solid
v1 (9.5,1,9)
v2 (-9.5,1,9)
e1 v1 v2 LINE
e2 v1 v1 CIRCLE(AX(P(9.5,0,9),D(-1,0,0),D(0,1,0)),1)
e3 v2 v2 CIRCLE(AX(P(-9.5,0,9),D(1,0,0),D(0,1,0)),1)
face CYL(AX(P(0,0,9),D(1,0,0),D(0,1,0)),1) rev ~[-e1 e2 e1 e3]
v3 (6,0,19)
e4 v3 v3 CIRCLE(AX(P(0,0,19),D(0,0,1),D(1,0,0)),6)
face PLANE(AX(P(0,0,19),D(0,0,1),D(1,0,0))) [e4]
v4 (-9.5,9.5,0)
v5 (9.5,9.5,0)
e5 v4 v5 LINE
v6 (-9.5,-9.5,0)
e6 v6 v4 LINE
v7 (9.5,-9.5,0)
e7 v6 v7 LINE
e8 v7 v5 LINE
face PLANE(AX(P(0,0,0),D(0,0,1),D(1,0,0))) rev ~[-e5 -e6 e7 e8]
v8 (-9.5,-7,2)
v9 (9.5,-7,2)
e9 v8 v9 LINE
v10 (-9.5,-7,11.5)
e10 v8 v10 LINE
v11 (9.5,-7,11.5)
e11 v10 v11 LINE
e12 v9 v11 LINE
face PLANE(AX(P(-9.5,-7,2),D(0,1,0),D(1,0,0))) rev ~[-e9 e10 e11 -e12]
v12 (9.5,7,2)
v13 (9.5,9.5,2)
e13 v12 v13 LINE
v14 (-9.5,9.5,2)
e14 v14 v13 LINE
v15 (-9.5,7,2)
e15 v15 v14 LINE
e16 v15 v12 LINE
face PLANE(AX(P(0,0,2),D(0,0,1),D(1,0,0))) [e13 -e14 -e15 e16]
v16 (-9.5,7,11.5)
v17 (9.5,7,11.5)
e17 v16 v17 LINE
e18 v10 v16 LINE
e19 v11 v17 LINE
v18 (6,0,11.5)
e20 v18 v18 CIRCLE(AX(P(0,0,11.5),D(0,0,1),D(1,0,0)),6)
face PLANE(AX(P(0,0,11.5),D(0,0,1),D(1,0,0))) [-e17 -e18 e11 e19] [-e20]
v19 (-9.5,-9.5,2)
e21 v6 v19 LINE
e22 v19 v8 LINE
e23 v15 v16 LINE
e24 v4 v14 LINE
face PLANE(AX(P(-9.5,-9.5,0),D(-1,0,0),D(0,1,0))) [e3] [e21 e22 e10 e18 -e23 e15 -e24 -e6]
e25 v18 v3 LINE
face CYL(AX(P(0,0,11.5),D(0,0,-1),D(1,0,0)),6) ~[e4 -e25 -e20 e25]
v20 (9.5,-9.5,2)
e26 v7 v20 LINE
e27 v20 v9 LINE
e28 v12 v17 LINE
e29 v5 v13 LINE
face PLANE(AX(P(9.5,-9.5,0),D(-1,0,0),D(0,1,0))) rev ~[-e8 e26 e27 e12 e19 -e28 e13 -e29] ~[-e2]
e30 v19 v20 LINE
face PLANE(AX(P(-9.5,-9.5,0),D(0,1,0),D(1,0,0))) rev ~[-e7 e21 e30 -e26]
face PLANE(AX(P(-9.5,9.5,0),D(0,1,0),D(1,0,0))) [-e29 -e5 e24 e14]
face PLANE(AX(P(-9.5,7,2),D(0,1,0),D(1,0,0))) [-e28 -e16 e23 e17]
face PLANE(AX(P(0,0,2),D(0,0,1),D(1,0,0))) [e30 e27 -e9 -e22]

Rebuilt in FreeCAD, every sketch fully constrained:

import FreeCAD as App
import Part
import Sketcher

V = App.Vector

doc = App.newDocument("Part")
body = doc.addObject("PartDesign::Body", "Body")

# Sketch on XY plane
sketch1 = body.newObject("Sketcher::SketchObject", "Sketch")
sketch1.AttachmentSupport = (doc.getObject("XY_Plane"), [""])
sketch1.MapMode = "FlatFace"
sketch1.addGeometry([
    Part.LineSegment(V(-9.5, 9.5, 0), V(-9.5, -9.5, 0)),
    Part.LineSegment(V(-9.5, -9.5, 0), V(9.5, -9.5, 0)),
    Part.LineSegment(V(9.5, -9.5, 0), V(9.5, 9.5, 0)),
    Part.LineSegment(V(9.5, 9.5, 0), V(-9.5, 9.5, 0)),
], False)
sketch1.addConstraint([
    Sketcher.Constraint("Coincident", 0, 2, 1, 1),
    Sketcher.Constraint("Coincident", 1, 2, 2, 1),
    Sketcher.Constraint("Coincident", 2, 2, 3, 1),
    Sketcher.Constraint("Coincident", 3, 2, 0, 1),
    Sketcher.Constraint("Vertical", 0),
    Sketcher.Constraint("Horizontal", 1),
    Sketcher.Constraint("Vertical", 2),
    Sketcher.Constraint("Horizontal", 3),
    Sketcher.Constraint("Symmetric", 0, 2, 2, 2, -1, 1),
    Sketcher.Constraint("Equal", 3, 0),
    Sketcher.Constraint("DistanceX", 1, 1, 1, 2, 19.0),
])
pad1 = body.newObject("PartDesign::Pad", "Pad")
pad1.Profile = sketch1
pad1.Length = 2

# Sketch on XY plane
sketch2 = body.newObject("Sketcher::SketchObject", "Sketch001")
sketch2.AttachmentSupport = (doc.getObject("XY_Plane"), [""])
sketch2.MapMode = "FlatFace"
sketch2.AttachmentOffset = App.Placement(V(0, 0, 2), App.Rotation())
sketch2.addGeometry([
    Part.LineSegment(V(-9.5, 7, 0), V(-9.5, -7, 0)),
    Part.LineSegment(V(-9.5, -7, 0), V(9.5, -7, 0)),
    Part.LineSegment(V(9.5, -7, 0), V(9.5, 7, 0)),
    Part.LineSegment(V(9.5, 7, 0), V(-9.5, 7, 0)),
], False)
sketch2.addConstraint([
    Sketcher.Constraint("Coincident", 0, 2, 1, 1),
    Sketcher.Constraint("Coincident", 1, 2, 2, 1),
    Sketcher.Constraint("Coincident", 2, 2, 3, 1),
    Sketcher.Constraint("Coincident", 3, 2, 0, 1),
    Sketcher.Constraint("Vertical", 0),
    Sketcher.Constraint("Horizontal", 1),
    Sketcher.Constraint("Vertical", 2),
    Sketcher.Constraint("Horizontal", 3),
    Sketcher.Constraint("Symmetric", 0, 2, 2, 2, -1, 1),
    Sketcher.Constraint("DistanceX", 1, 1, 1, 2, 19.0),
    Sketcher.Constraint("DistanceY", 0, 2, 0, 1, 14.0),
])
pad2 = body.newObject("PartDesign::Pad", "Pad001")
pad2.Profile = sketch2
pad2.Length = 9.5

# Sketch on XY plane
sketch3 = body.newObject("Sketcher::SketchObject", "Sketch002")
sketch3.AttachmentSupport = (doc.getObject("XY_Plane"), [""])
sketch3.MapMode = "FlatFace"
sketch3.AttachmentOffset = App.Placement(V(0, 0, 11.5), App.Rotation())
sketch3.addGeometry(Part.Circle(V(0, 0, 0), V(0, 0, 1), 6), False)
sketch3.addConstraint([
    Sketcher.Constraint("Coincident", 0, 3, -1, 1),
    Sketcher.Constraint("Diameter", 0, 12.0),
])
pad3 = body.newObject("PartDesign::Pad", "Pad002")
pad3.Profile = sketch3
pad3.Length = 7.5

# Sketch on YZ plane
sketch4 = body.newObject("Sketcher::SketchObject", "Sketch003")
sketch4.AttachmentSupport = (doc.getObject("YZ_Plane"), [""])
sketch4.MapMode = "FlatFace"
sketch4.addGeometry(Part.Circle(V(0, 9, 0), V(0, 0, 1), 1), False)
sketch4.addConstraint([
    Sketcher.Constraint("PointOnObject", 0, 3, -2),
    Sketcher.Constraint("Diameter", 0, 2.0),
    Sketcher.Constraint("DistanceY", -1, 1, 0, 3, 9.0),
])
pocket1 = body.newObject("PartDesign::Pocket", "Pocket")
pocket1.Profile = sketch4
pocket1.Type = "ThroughAll"
pocket1.Midplane = True

doc.recompute()
